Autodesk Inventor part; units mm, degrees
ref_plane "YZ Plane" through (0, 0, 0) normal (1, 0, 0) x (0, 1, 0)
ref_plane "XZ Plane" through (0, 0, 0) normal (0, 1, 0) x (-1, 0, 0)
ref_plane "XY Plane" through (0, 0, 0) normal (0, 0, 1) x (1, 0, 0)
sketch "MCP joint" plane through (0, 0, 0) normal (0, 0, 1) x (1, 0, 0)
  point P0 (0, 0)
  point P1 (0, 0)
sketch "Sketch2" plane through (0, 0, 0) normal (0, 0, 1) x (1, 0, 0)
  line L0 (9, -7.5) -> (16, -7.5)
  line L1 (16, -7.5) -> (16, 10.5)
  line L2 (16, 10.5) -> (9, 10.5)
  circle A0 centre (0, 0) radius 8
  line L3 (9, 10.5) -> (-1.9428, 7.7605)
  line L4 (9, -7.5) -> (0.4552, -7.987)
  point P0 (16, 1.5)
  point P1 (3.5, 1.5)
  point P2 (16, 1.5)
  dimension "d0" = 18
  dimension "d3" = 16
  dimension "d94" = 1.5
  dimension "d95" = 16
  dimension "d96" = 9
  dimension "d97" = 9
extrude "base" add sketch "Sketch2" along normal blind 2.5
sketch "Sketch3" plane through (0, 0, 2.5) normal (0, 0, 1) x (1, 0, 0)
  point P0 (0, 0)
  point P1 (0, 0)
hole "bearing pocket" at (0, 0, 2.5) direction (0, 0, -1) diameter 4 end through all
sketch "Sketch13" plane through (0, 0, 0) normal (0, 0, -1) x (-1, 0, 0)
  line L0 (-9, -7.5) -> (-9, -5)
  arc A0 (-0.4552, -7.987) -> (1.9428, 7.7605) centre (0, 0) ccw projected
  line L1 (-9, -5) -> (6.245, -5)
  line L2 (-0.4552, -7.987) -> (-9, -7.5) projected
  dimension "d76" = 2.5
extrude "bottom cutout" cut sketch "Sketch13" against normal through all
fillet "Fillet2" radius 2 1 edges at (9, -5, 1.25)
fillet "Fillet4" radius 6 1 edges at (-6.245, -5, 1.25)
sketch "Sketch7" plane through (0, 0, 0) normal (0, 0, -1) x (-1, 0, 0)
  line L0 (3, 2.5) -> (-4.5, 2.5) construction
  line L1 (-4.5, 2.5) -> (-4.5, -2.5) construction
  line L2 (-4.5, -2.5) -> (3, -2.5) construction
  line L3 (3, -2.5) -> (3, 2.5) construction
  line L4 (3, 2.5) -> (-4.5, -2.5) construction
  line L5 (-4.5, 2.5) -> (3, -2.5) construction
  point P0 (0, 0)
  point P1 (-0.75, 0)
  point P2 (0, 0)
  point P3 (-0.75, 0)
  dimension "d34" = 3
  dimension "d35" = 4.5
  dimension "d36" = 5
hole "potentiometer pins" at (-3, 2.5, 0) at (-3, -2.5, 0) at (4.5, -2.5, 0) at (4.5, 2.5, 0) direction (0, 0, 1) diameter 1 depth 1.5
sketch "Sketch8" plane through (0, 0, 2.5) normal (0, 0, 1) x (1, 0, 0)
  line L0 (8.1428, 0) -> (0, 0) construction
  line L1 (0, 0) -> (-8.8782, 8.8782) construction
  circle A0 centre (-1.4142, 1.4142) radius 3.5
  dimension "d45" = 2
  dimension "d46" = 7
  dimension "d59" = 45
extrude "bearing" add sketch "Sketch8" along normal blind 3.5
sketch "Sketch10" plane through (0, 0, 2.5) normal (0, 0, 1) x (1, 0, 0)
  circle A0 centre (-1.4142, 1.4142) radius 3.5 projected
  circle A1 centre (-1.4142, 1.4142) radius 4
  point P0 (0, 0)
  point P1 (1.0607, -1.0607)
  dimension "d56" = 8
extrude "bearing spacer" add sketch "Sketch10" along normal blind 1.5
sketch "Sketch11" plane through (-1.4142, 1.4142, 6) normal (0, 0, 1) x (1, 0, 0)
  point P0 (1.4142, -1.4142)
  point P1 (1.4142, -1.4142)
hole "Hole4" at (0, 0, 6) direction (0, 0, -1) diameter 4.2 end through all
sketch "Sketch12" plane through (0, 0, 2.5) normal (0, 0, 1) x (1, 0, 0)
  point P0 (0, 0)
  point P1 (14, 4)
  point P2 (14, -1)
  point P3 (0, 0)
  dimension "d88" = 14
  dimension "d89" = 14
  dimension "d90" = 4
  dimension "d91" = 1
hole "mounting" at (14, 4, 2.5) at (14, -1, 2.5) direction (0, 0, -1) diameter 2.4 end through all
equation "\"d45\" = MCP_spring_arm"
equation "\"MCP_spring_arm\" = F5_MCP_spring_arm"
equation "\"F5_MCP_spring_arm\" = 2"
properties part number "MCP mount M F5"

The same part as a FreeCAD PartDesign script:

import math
import FreeCAD as App
import Part
import Sketcher
Q = App.Units.Quantity


def edges_at(feature, points):
    """Names of the edges that pass closest to the given points."""
    edges = feature.Shape.Edges
    near = lambda p: min(range(len(edges)), key=lambda i: edges[i].distToShape(Part.Vertex(*p))[0])
    return sorted({f"Edge{near(p) + 1}" for p in points})

doc = App.newDocument("Part")
params = doc.addObject("Spreadsheet::Sheet", "Params")
for row, (alias, value) in enumerate([
    ("sketch1_radius", "8 mm"),
    ("sketch1_height", "18 mm"),
    ("pad1_length", "2.5 mm"),
    ("sketch2_diameter", "4 mm"),
    ("hole_diameter", "4 mm"),
    ("sketch3_height", "2.5 mm"),
    ("sketch3_radius", "8 mm"),
    ("fillet_radius", "2 mm"),
    ("fillet2_radius", "6 mm"),
    ("sketch4_diameter", "1 mm"),
    ("hole2_diameter", "1 mm"),
    ("hole2_depth", "1.5 mm"),
    ("sketch5_diameter", "7 mm"),
    ("pad2_length", "3.5 mm"),
    ("sketch6_diameter", "8 mm"),
    ("sketch6_diameter2", "7 mm"),
    ("pad3_length", "1.5 mm"),
    ("sketch7_diameter", "4.2 mm"),
    ("hole3_diameter", "4.2 mm"),
    ("sketch8_diameter", "2.4 mm"),
    ("hole4_diameter", "2.4 mm"),
], start=1):
    params.set(f"A{row}", alias)
    params.set(f"B{row}", "=" + value)
    params.setAlias(f"B{row}", alias)

body = doc.addObject("PartDesign::Body", "Body")

# Sketch on XY plane
sketch1 = body.newObject("Sketcher::SketchObject", "Sketch")
sketch1.AttachmentSupport = (doc.getObject("XY_Plane"), [""])
sketch1.MapMode = "FlatFace"
sketch1.addGeometry([
    Part.LineSegment(App.Vector(0, -8, 0), App.Vector(9, -8, 0)),  # 0
    Part.LineSegment(App.Vector(9, -8, 0), App.Vector(16, -8, 0)),  # 1
    Part.LineSegment(App.Vector(16, -8, 0), App.Vector(16, 10, 0)),  # 2
    Part.LineSegment(App.Vector(16, 10, 0), App.Vector(9, 10, 0)),  # 3
    Part.LineSegment(App.Vector(9, 10, 0), App.Vector(-2, 8, 0)),  # 4
    Part.ArcOfCircle(Part.Circle(App.Vector(0, 0, 0), App.Vector(0, 0, 1), 8), math.radians(104), math.radians(273)),  # 5
], False)
sketch1.addConstraint([
    Sketcher.Constraint("Coincident", 0, 2, 1, 1),
    Sketcher.Constraint("Coincident", 1, 2, 2, 1),
    Sketcher.Constraint("Coincident", 2, 2, 3, 1),
    Sketcher.Constraint("Coincident", 3, 2, 4, 1),
    Sketcher.Constraint("Tangent", 4, 2, 5, 1),
    Sketcher.Constraint("Tangent", 5, 2, 0, 1),
    Sketcher.Constraint("Horizontal", 1),
    Sketcher.Constraint("Vertical", 2),
    Sketcher.Constraint("Horizontal", 3),
    Sketcher.Constraint("Coincident", 5, 3, -1, 1),
    Sketcher.Constraint("Vertical", 0, 2, 3, 2),
    Sketcher.Constraint("Radius", 5, Q("8 mm")),
    Sketcher.Constraint("DistanceY", 2, 1, 2, 2, Q("18 mm")),
    Sketcher.Constraint("DistanceX", -1, 1, 0, 2, Q("9 mm")),
    Sketcher.Constraint("DistanceX", -1, 1, 1, 2, Q("16 mm")),
    Sketcher.Constraint("DistanceY", 0, 2, -1, 1, Q("7.5 mm")),
])
sketch1.setExpression("Constraints[11]", "Params.sketch1_radius")
sketch1.setExpression("Constraints[12]", "Params.sketch1_height")
pad1 = body.newObject("PartDesign::Pad", "Pad")
pad1.Profile = sketch1
pad1.setExpression("Length", "Params.pad1_length")

# Sketch on XY plane
sketch2 = body.newObject("Sketcher::SketchObject", "Sketch001")
sketch2.AttachmentSupport = (doc.getObject("XY_Plane"), [""])
sketch2.MapMode = "FlatFace"
sketch2.AttachmentOffset = App.Placement(App.Vector(0, 0, 2.5), App.Rotation())
sketch2.addGeometry(Part.Circle(App.Vector(0, 0, 0), App.Vector(0, 0, 1), 2), False)
sketch2.addConstraint([
    Sketcher.Constraint("Coincident", 0, 3, -1, 1),
    Sketcher.Constraint("Diameter", 0, Q("4 mm")),
])
sketch2.setExpression("Constraints[1]", "Params.sketch2_diameter")
doc.recompute()
hole = body.newObject("PartDesign::Hole", "Hole")
hole.Profile = sketch2
hole.ThreadType = "None"
hole.setExpression("Diameter", "Params.hole_diameter")
hole.DepthType = "ThroughAll"

# Sketch on XY plane
sketch3 = body.newObject("Sketcher::SketchObject", "Sketch002")
sketch3.AttachmentSupport = (doc.getObject("XY_Plane"), [""])
sketch3.MapMode = "FlatFace"
sketch3.addGeometry([
    Part.LineSegment(App.Vector(9, -5, 0), App.Vector(9, -7.5, 0)),
    Part.LineSegment(App.Vector(9, -7.5, 0), App.Vector(0.5, -8, 0)),
    Part.ArcOfCircle(Part.Circle(App.Vector(0, 0, 0), App.Vector(0, 0, 1), 8), math.radians(-141), math.radians(-87)),
    Part.LineSegment(App.Vector(-6.2, -5, 0), App.Vector(9, -5, 0)),
], False)
sketch3.addConstraint([
    Sketcher.Constraint("Coincident", 0, 2, 1, 1),
    Sketcher.Constraint("Tangent", 1, 2, 2, 2),
    Sketcher.Constraint("Coincident", 2, 1, 3, 1),
    Sketcher.Constraint("Coincident", 3, 2, 0, 1),
    Sketcher.Constraint("Vertical", 0),
    Sketcher.Constraint("Horizontal", 3),
    Sketcher.Constraint("Coincident", 2, 3, -1, 1),
    Sketcher.Constraint("DistanceY", 0, 2, 0, 1, Q("2.5 mm")),
    Sketcher.Constraint("Radius", 2, Q("8 mm")),
    Sketcher.Constraint("DistanceX", -1, 1, 0, 2, Q("9 mm")),
    Sketcher.Constraint("DistanceY", 2, 1, -1, 1, Q("5 mm")),
])
sketch3.setExpression("Constraints[7]", "Params.sketch3_height")
sketch3.setExpression("Constraints[8]", "Params.sketch3_radius")
pocket1 = body.newObject("PartDesign::Pocket", "Pocket")
pocket1.Profile = sketch3
pocket1.Type = "ThroughAll"
pocket1.Reversed = True
doc.recompute()

fillet = body.newObject("PartDesign::Fillet", "Fillet")
fillet.Base = (pocket1, edges_at(pocket1, [(9, -5, 1.25)]))
fillet.setExpression("Radius", "Params.fillet_radius")
doc.recompute()

fillet2 = body.newObject("PartDesign::Fillet", "Fillet001")
fillet2.Base = (fillet, edges_at(fillet, [(-6.245, -5, 1.25)]))
fillet2.setExpression("Radius", "Params.fillet2_radius")

# Sketch on XY plane
sketch4 = body.newObject("Sketcher::SketchObject", "Sketch003")
sketch4.AttachmentSupport = (doc.getObject("XY_Plane"), [""])
sketch4.MapMode = "FlatFace"
sketch4.addGeometry([
    Part.Circle(App.Vector(-3, 2.5, 0), App.Vector(0, 0, 1), 0.5),
    Part.Circle(App.Vector(-3, -2.5, 0), App.Vector(0, 0, 1), 0.5),
    Part.Circle(App.Vector(4.5, -2.5, 0), App.Vector(0, 0, 1), 0.5),
    Part.Circle(App.Vector(4.5, 2.5, 0), App.Vector(0, 0, 1), 0.5),
], False)
sketch4.addConstraint([
    Sketcher.Constraint("Equal", 0, 1),
    Sketcher.Constraint("Equal", 1, 2),
    Sketcher.Constraint("Equal", 2, 3),
    Sketcher.Constraint("Symmetric", 0, 3, 1, 3, -1),
    Sketcher.Constraint("Symmetric", 2, 3, 3, 3, -1),
    Sketcher.Constraint("Horizontal", 1, 3, 2, 3),
    Sketcher.Constraint("Diameter", 0, Q("1 mm")),
    Sketcher.Constraint("DistanceX", 0, 3, -1, 1, Q("3 mm")),
    Sketcher.Constraint("DistanceY", 1, 3, 0, 3, Q("5 mm")),
    Sketcher.Constraint("DistanceX", -1, 1, 2, 3, Q("4.5 mm")),
])
sketch4.setExpression("Constraints[6]", "Params.sketch4_diameter")
doc.recompute()
hole2 = body.newObject("PartDesign::Hole", "Hole001")
hole2.Profile = sketch4
hole2.ThreadType = "None"
hole2.setExpression("Diameter", "Params.hole2_diameter")
hole2.DepthType = "Dimension"
hole2.setExpression("Depth", "Params.hole2_depth")
hole2.DrillPoint = "Flat"
hole2.Reversed = True

# Sketch on XY plane
sketch5 = body.newObject("Sketcher::SketchObject", "Sketch004")
sketch5.AttachmentSupport = (doc.getObject("XY_Plane"), [""])
sketch5.MapMode = "FlatFace"
sketch5.AttachmentOffset = App.Placement(App.Vector(0, 0, 2.5), App.Rotation())
sketch5.addGeometry(Part.Circle(App.Vector(-1.4, 1.4, 0), App.Vector(0, 0, 1), 3.5), False)
sketch5.addConstraint([
    Sketcher.Constraint("Diameter", 0, Q("7 mm")),
    Sketcher.Constraint("DistanceX", 0, 3, -1, 1, Q("1.4142 mm")),
    Sketcher.Constraint("DistanceY", -1, 1, 0, 3, Q("1.4142 mm")),
])
sketch5.setExpression("Constraints[0]", "Params.sketch5_diameter")
pad2 = body.newObject("PartDesign::Pad", "Pad001")
pad2.Profile = sketch5
pad2.setExpression("Length", "Params.pad2_length")

# Sketch on XY plane
sketch6 = body.newObject("Sketcher::SketchObject", "Sketch005")
sketch6.AttachmentSupport = (doc.getObject("XY_Plane"), [""])
sketch6.MapMode = "FlatFace"
sketch6.AttachmentOffset = App.Placement(App.Vector(0, 0, 2.5), App.Rotation())
sketch6.addGeometry([
    Part.Circle(App.Vector(-1.4, 1.4, 0), App.Vector(0, 0, 1), 4),
    Part.Circle(App.Vector(-1.4, 1.4, 0), App.Vector(0, 0, 1), 3.5),
], False)
sketch6.addConstraint([
    Sketcher.Constraint("Coincident", 1, 3, 0, 3),
    Sketcher.Constraint("Diameter", 0, Q("8 mm")),
    Sketcher.Constraint("Diameter", 1, Q("7 mm")),
    Sketcher.Constraint("DistanceX", 0, 3, -1, 1, Q("1.4142 mm")),
    Sketcher.Constraint("DistanceY", -1, 1, 0, 3, Q("1.4142 mm")),
])
sketch6.setExpression("Constraints[1]", "Params.sketch6_diameter")
sketch6.setExpression("Constraints[2]", "Params.sketch6_diameter2")
pad3 = body.newObject("PartDesign::Pad", "Pad002")
pad3.Profile = sketch6
pad3.setExpression("Length", "Params.pad3_length")

# Sketch on XY plane
sketch7 = body.newObject("Sketcher::SketchObject", "Sketch006")
sketch7.AttachmentSupport = (doc.getObject("XY_Plane"), [""])
sketch7.MapMode = "FlatFace"
sketch7.AttachmentOffset = App.Placement(App.Vector(0, 0, 6), App.Rotation())
sketch7.addGeometry(Part.Circle(App.Vector(0, 0, 0), App.Vector(0, 0, 1), 2.1), False)
sketch7.addConstraint([
    Sketcher.Constraint("Coincident", 0, 3, -1, 1),
    Sketcher.Constraint("Diameter", 0, Q("4.2 mm")),
])
sketch7.setExpression("Constraints[1]", "Params.sketch7_diameter")
doc.recompute()
hole3 = body.newObject("PartDesign::Hole", "Hole002")
hole3.Profile = sketch7
hole3.ThreadType = "None"
hole3.setExpression("Diameter", "Params.hole3_diameter")
hole3.DepthType = "ThroughAll"

# Sketch on XY plane
sketch8 = body.newObject("Sketcher::SketchObject", "Sketch007")
sketch8.AttachmentSupport = (doc.getObject("XY_Plane"), [""])
sketch8.MapMode = "FlatFace"
sketch8.AttachmentOffset = App.Placement(App.Vector(0, 0, 2.5), App.Rotation())
sketch8.addGeometry([
    Part.Circle(App.Vector(14, 4, 0), App.Vector(0, 0, 1), 1.2),
    Part.Circle(App.Vector(14, -1, 0), App.Vector(0, 0, 1), 1.2),
], False)
sketch8.addConstraint([
    Sketcher.Constraint("Equal", 0, 1),
    Sketcher.Constraint("Vertical", 0, 3, 1, 3),
    Sketcher.Constraint("Diameter", 0, Q("2.4 mm")),
    Sketcher.Constraint("DistanceX", -1, 1, 0, 3, Q("14 mm")),
    Sketcher.Constraint("DistanceY", -1, 1, 0, 3, Q("4 mm")),
    Sketcher.Constraint("DistanceY", 1, 3, -1, 1, Q("1 mm")),
])
sketch8.setExpression("Constraints[2]", "Params.sketch8_diameter")
doc.recompute()
hole4 = body.newObject("PartDesign::Hole", "Hole003")
hole4.Profile = sketch8
hole4.ThreadType = "None"
hole4.setExpression("Diameter", "Params.hole4_diameter")
hole4.DepthType = "ThroughAll"

doc.recompute()
